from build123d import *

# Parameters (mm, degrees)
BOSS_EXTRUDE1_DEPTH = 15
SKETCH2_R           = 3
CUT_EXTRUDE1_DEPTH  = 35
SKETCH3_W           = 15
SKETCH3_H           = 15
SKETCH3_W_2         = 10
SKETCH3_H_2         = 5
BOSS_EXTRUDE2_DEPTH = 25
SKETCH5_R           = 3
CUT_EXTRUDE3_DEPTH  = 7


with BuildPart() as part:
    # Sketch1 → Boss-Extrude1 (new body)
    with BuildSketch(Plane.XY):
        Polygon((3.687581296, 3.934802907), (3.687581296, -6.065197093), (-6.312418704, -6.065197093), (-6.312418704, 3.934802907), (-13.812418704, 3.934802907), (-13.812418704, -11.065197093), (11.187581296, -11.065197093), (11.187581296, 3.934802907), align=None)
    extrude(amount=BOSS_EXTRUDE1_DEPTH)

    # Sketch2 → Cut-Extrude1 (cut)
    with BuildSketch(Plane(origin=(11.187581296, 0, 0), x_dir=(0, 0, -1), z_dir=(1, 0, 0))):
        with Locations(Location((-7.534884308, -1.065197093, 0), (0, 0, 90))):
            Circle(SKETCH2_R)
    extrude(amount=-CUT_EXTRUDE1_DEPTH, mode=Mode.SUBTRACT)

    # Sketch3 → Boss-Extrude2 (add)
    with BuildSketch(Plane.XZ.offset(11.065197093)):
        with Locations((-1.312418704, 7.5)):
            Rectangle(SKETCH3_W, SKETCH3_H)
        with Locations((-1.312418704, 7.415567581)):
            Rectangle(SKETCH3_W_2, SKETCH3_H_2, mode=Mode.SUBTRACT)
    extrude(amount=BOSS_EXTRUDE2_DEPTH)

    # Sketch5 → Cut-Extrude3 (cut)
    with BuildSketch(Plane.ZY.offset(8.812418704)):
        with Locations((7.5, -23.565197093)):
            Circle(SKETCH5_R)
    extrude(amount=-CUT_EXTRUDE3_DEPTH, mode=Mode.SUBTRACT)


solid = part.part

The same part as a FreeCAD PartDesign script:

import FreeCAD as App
import Part
import Sketcher


def add_polygon(sketch, points):
    """Adds a closed chain of lines whose ends are joined by coincident constraints."""
    first, n = sketch.GeometryCount, len(points)
    for a, b in zip(points, points[1:] + points[:1]):
        sketch.addGeometry(Part.LineSegment(App.Vector(*a, 0), App.Vector(*b, 0)), False)
    for i in range(n):
        sketch.addConstraint(Sketcher.Constraint("Coincident", first + i, 2, first + (i + 1) % n, 1))

doc = App.newDocument("Part")
params = doc.addObject("Spreadsheet::Sheet", "Params")
for row, (alias, value) in enumerate([
    ("sketch1_width", "10 mm"),
    ("sketch1_width2", "25 mm"),
    ("sketch1_height", "15 mm"),
    ("pad1_length", "15 mm"),
    ("sketch2_diameter", "6 mm"),
    ("pocket1_length", "35 mm"),
    ("sketch3_width", "15 mm"),
    ("sketch3_width2", "10 mm"),
    ("sketch3_height", "5 mm"),
    ("pad2_length", "25 mm"),
    ("sketch4_diameter", "6 mm"),
    ("pocket2_length", "7 mm"),
], start=1):
    params.set(f"A{row}", alias)
    params.set(f"B{row}", "=" + value)
    params.setAlias(f"B{row}", alias)

body = doc.addObject("PartDesign::Body", "Body")

# Sketch on XY plane
sketch1 = doc.addObject("Sketcher::SketchObject", "Sketch")
body.addObject(sketch1)
sketch1.AttachmentSupport = (doc.XY_Plane, [""])
sketch1.MapMode = "FlatFace"
add_polygon(sketch1, [(4, 4), (4, -6), (-6, -6), (-6, 4), (-14, 4), (-14, -11), (11, -11), (11, 4)])  # lines 0-7
sketch1.addConstraint([
    Sketcher.Constraint("Vertical", 0),
    Sketcher.Constraint("Horizontal", 1),
    Sketcher.Constraint("Vertical", 2),
    Sketcher.Constraint("Horizontal", 3),
    Sketcher.Constraint("Vertical", 4),
    Sketcher.Constraint("Horizontal", 5),
    Sketcher.Constraint("Vertical", 6),
    Sketcher.Constraint("Horizontal", 7),
    Sketcher.Constraint("Horizontal", 3, 2, 6, 2),
    Sketcher.Constraint("Equal", 3, 7),
    Sketcher.Constraint("Equal", 1, 0),
    Sketcher.Constraint("DistanceX", 1, 2, 1, 1, 10.0),
    Sketcher.Constraint("DistanceX", 5, 1, 5, 2, 25.0),
    Sketcher.Constraint("DistanceY", 4, 2, 4, 1, 15.0),
    Sketcher.Constraint("DistanceX", -1, 1, 0, 2, 3.687581),
    Sketcher.Constraint("DistanceY", 0, 2, -1, 1, 6.065197),
])
sketch1.setExpression("Constraints[19]", "Params.sketch1_width")
sketch1.setExpression("Constraints[20]", "Params.sketch1_width2")
sketch1.setExpression("Constraints[21]", "Params.sketch1_height")
pad1 = doc.addObject("PartDesign::Pad", "Pad")
body.addObject(pad1)
pad1.Profile = sketch1
pad1.setExpression("Length", "Params.pad1_length")

# Sketch on YZ plane
sketch2 = doc.addObject("Sketcher::SketchObject", "Sketch001")
body.addObject(sketch2)
sketch2.AttachmentSupport = (doc.YZ_Plane, [""])
sketch2.MapMode = "FlatFace"
sketch2.AttachmentOffset = App.Placement(App.Vector(0, 0, 11.187581), App.Rotation())
sketch2.addGeometry(Part.Circle(App.Vector(-1.1, 7.5, 0), App.Vector(0, 0, 1), 3), False)
sketch2.addConstraint([
    Sketcher.Constraint("Diameter", 0, 6.0),
    Sketcher.Constraint("DistanceX", 0, 3, -1, 1, 1.065197),
    Sketcher.Constraint("DistanceY", -1, 1, 0, 3, 7.534884),
])
sketch2.setExpression("Constraints[0]", "Params.sketch2_diameter")
pocket1 = doc.addObject("PartDesign::Pocket", "Pocket")
body.addObject(pocket1)
pocket1.Profile = sketch2
pocket1.setExpression("Length", "Params.pocket1_length")

# Sketch on XZ plane
sketch3 = doc.addObject("Sketcher::SketchObject", "Sketch002")
body.addObject(sketch3)
sketch3.AttachmentSupport = (doc.XZ_Plane, [""])
sketch3.MapMode = "FlatFace"
sketch3.AttachmentOffset = App.Placement(App.Vector(0, 0, 11.065197), App.Rotation())
add_polygon(sketch3, [(-8.8, 15), (-8.8, 0), (6.2, 0), (6.2, 15)])  # lines 0-3
add_polygon(sketch3, [(3.7, 4.9), (-6.3, 4.9), (-6.3, 9.9), (3.7, 9.9)])  # lines 4-7
sketch3.addConstraint([
    Sketcher.Constraint("Vertical", 0),
    Sketcher.Constraint("Horizontal", 1),
    Sketcher.Constraint("Vertical", 2),
    Sketcher.Constraint("Horizontal", 3),
    Sketcher.Constraint("Horizontal", 4),
    Sketcher.Constraint("Vertical", 5),
    Sketcher.Constraint("Horizontal", 6),
    Sketcher.Constraint("Vertical", 7),
    Sketcher.Constraint("PointOnObject", 0, 2, -1),
    Sketcher.Constraint("Equal", 3, 0),
    Sketcher.Constraint("DistanceX", 1, 1, 1, 2, 15.0),
    Sketcher.Constraint("DistanceX", 4, 2, 4, 1, 10.0),
    Sketcher.Constraint("DistanceY", 5, 1, 5, 2, 5.0),
    Sketcher.Constraint("DistanceX", 0, 2, 4, 2, 2.5),
    Sketcher.Constraint("DistanceX", 0, 2, -1, 1, 8.812419),
    Sketcher.Constraint("DistanceY", -1, 1, 4, 2, 4.915568),
])
sketch3.setExpression("Constraints[18]", "Params.sketch3_width")
sketch3.setExpression("Constraints[19]", "Params.sketch3_width2")
sketch3.setExpression("Constraints[20]", "Params.sketch3_height")
pad2 = doc.addObject("PartDesign::Pad", "Pad001")
body.addObject(pad2)
pad2.Profile = sketch3
pad2.setExpression("Length", "Params.pad2_length")

# Sketch on YZ plane
sketch4 = doc.addObject("Sketcher::SketchObject", "Sketch003")
body.addObject(sketch4)
sketch4.AttachmentSupport = (doc.YZ_Plane, [""])
sketch4.MapMode = "FlatFace"
sketch4.AttachmentOffset = App.Placement(App.Vector(0, 0, -8.812419), App.Rotation())
sketch4.addGeometry(Part.Circle(App.Vector(-23.6, 7.5, 0), App.Vector(0, 0, 1), 3), False)
sketch4.addConstraint([
    Sketcher.Constraint("Diameter", 0, 6.0),
    Sketcher.Constraint("DistanceY", -1, 1, 0, 3, 7.5),
    Sketcher.Constraint("DistanceX", 0, 3, -1, 1, 23.565197),
])
sketch4.setExpression("Constraints[0]", "Params.sketch4_diameter")
pocket2 = doc.addObject("PartDesign::Pocket", "Pocket001")
body.addObject(pocket2)
pocket2.Profile = sketch4
pocket2.setExpression("Length", "Params.pocket2_length")
pocket2.Reversed = True

doc.recompute()
